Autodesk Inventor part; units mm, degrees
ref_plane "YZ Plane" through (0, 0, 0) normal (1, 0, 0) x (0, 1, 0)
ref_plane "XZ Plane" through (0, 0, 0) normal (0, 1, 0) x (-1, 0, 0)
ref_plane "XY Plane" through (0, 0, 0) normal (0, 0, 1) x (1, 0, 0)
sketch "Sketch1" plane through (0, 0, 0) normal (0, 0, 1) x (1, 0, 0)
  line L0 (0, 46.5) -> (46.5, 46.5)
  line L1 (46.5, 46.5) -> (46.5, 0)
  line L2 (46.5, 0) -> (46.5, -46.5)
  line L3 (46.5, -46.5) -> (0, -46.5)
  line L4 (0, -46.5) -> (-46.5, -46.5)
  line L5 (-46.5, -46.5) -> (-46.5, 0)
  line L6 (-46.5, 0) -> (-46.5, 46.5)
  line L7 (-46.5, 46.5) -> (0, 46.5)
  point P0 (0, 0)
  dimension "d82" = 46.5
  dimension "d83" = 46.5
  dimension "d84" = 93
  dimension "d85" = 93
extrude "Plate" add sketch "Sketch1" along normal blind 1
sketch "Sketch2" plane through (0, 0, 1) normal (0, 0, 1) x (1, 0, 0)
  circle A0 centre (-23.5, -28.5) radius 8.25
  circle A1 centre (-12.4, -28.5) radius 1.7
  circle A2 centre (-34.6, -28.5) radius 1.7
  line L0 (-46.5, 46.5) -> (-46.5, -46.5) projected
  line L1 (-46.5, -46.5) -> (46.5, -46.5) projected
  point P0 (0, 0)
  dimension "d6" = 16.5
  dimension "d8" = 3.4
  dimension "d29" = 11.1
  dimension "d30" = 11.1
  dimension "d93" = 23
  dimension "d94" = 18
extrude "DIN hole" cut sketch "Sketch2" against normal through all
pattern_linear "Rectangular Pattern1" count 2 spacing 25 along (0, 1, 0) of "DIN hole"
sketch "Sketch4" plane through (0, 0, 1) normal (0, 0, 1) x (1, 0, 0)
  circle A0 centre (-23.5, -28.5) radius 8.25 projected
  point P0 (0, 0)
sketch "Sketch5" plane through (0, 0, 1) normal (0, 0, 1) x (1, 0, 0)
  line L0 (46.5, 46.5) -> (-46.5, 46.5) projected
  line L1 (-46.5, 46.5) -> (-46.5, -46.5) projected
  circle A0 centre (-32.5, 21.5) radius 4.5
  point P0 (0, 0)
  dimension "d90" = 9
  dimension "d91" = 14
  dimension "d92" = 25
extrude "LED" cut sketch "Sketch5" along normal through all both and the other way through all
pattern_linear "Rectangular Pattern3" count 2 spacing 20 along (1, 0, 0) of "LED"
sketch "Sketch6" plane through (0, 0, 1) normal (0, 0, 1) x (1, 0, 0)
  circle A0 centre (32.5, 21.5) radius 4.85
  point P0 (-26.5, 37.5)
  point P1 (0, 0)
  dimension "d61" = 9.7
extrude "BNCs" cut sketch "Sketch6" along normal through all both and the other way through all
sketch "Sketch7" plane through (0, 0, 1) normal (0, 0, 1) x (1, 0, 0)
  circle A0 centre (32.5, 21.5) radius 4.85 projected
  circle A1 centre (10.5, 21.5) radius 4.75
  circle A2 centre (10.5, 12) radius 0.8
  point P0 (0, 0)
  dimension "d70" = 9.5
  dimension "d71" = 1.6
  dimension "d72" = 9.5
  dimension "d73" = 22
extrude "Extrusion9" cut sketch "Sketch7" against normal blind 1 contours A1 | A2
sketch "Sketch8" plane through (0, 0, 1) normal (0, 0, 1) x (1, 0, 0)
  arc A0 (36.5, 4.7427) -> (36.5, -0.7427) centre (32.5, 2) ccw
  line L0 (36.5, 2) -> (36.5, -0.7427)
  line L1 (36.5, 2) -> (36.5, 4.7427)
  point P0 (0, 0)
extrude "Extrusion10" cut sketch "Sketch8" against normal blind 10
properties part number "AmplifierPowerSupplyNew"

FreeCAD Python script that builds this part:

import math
import FreeCAD as App
import Part
import Sketcher

V = App.Vector
Q = App.Units.Quantity


def add_polygon(sketch, points):
    """Adds a closed chain of lines whose ends are joined by coincident constraints."""
    first, n = sketch.GeometryCount, len(points)
    for a, b in zip(points, points[1:] + points[:1]):
        sketch.addGeometry(Part.LineSegment(App.Vector(*a, 0), App.Vector(*b, 0)), False)
    for i in range(n):
        sketch.addConstraint(Sketcher.Constraint("Coincident", first + i, 2, first + (i + 1) % n, 1))

doc = App.newDocument("Part")
body = doc.addObject("PartDesign::Body", "Body")

# Sketch on XY plane
sketch1 = body.newObject("Sketcher::SketchObject", "Sketch")
sketch1.AttachmentSupport = (doc.getObject("XY_Plane"), [""])
sketch1.MapMode = "FlatFace"
add_polygon(sketch1, [(46.5, 46.5), (-46.5, 46.5), (-46.5, -46.5), (46.5, -46.5)])  # lines 0-3
sketch1.addConstraint([
    Sketcher.Constraint("Horizontal", 0),
    Sketcher.Constraint("Vertical", 1),
    Sketcher.Constraint("Horizontal", 2),
    Sketcher.Constraint("Vertical", 3),
    Sketcher.Constraint("Symmetric", 0, 2, 2, 2, -1, 1),
    Sketcher.Constraint("Equal", 2, 1),
    Sketcher.Constraint("DistanceX", 0, 2, 0, 1, Q("93 mm")),
])
pad1 = body.newObject("PartDesign::Pad", "Pad")
pad1.Profile = sketch1
pad1.Length = 1

# Sketch on XY plane
sketch2 = body.newObject("Sketcher::SketchObject", "Sketch001")
sketch2.AttachmentSupport = (doc.getObject("XY_Plane"), [""])
sketch2.MapMode = "FlatFace"
sketch2.AttachmentOffset = App.Placement(V(0, 0, 1), App.Rotation())
sketch2.addGeometry([
    Part.Circle(V(-23.5, -28.5, 0), V(0, 0, 1), 8.25),
    Part.Circle(V(-12.4, -28.5, 0), V(0, 0, 1), 1.7),
    Part.Circle(V(-34.6, -28.5, 0), V(0, 0, 1), 1.7),
], False)
sketch2.addConstraint([
    Sketcher.Constraint("Equal", 1, 2),
    Sketcher.Constraint("Horizontal", 0, 3, 1, 3),
    Sketcher.Constraint("Horizontal", 1, 3, 2, 3),
    Sketcher.Constraint("Diameter", 0, Q("16.5 mm")),
    Sketcher.Constraint("Diameter", 1, Q("3.4 mm")),
    Sketcher.Constraint("DistanceX", 0, 3, 1, 3, Q("11.1 mm")),
    Sketcher.Constraint("DistanceX", 2, 3, 0, 3, Q("11.1 mm")),
    Sketcher.Constraint("DistanceX", 0, 3, -1, 1, Q("23.5 mm")),
    Sketcher.Constraint("DistanceY", 0, 3, -1, 1, Q("28.5 mm")),
])
pocket1 = body.newObject("PartDesign::Pocket", "Pocket")
pocket1.Profile = sketch2
pocket1.Type = "ThroughAll"
doc.recompute()

linearpattern = body.newObject("PartDesign::LinearPattern", "LinearPattern")
linearpattern.Originals = [pocket1]
linearpattern.Direction = (doc.getObject("Y_Axis"), [""])
linearpattern.Mode = "offset"
linearpattern.Offset = 25
linearpattern.Occurrences = 2
body.Tip = linearpattern

# Sketch on XY plane
sketch3 = body.newObject("Sketcher::SketchObject", "Sketch002")
sketch3.AttachmentSupport = (doc.getObject("XY_Plane"), [""])
sketch3.MapMode = "FlatFace"
sketch3.AttachmentOffset = App.Placement(V(0, 0, 1), App.Rotation())
sketch3.addGeometry(Part.Circle(V(-32.5, 21.5, 0), V(0, 0, 1), 4.5), False)
sketch3.addConstraint([
    Sketcher.Constraint("Diameter", 0, Q("9 mm")),
    Sketcher.Constraint("DistanceX", 0, 3, -1, 1, Q("32.5 mm")),
    Sketcher.Constraint("DistanceY", -1, 1, 0, 3, Q("21.5 mm")),
])
pocket2 = body.newObject("PartDesign::Pocket", "Pocket001")
pocket2.Profile = sketch3
pocket2.Type = "ThroughAll"
pocket2.Midplane = True
doc.recompute()

linearpattern2 = body.newObject("PartDesign::LinearPattern", "LinearPattern001")
linearpattern2.Originals = [pocket2]
linearpattern2.Direction = (doc.getObject("X_Axis"), [""])
linearpattern2.Mode = "offset"
linearpattern2.Offset = 20
linearpattern2.Occurrences = 2
body.Tip = linearpattern2

# Sketch on XY plane
sketch4 = body.newObject("Sketcher::SketchObject", "Sketch003")
sketch4.AttachmentSupport = (doc.getObject("XY_Plane"), [""])
sketch4.MapMode = "FlatFace"
sketch4.AttachmentOffset = App.Placement(V(0, 0, 1), App.Rotation())
sketch4.addGeometry(Part.Circle(V(32.5, 21.5, 0), V(0, 0, 1), 4.85), False)
sketch4.addConstraint([
    Sketcher.Constraint("Diameter", 0, Q("9.7 mm")),
    Sketcher.Constraint("DistanceX", -1, 1, 0, 3, Q("32.5 mm")),
    Sketcher.Constraint("DistanceY", -1, 1, 0, 3, Q("21.5 mm")),
])
pocket3 = body.newObject("PartDesign::Pocket", "Pocket002")
pocket3.Profile = sketch4
pocket3.Type = "ThroughAll"
pocket3.Midplane = True

# Sketch on XY plane
sketch5 = body.newObject("Sketcher::SketchObject", "Sketch004")
sketch5.AttachmentSupport = (doc.getObject("XY_Plane"), [""])
sketch5.MapMode = "FlatFace"
sketch5.AttachmentOffset = App.Placement(V(0, 0, 1), App.Rotation())
sketch5.addGeometry([
    Part.Circle(V(10.5, 21.5, 0), V(0, 0, 1), 4.75),
    Part.Circle(V(10.5, 12, 0), V(0, 0, 1), 0.8),
], False)
sketch5.addConstraint([
    Sketcher.Constraint("Vertical", 0, 3, 1, 3),
    Sketcher.Constraint("Diameter", 0, Q("9.5 mm")),
    Sketcher.Constraint("Diameter", 1, Q("1.6 mm")),
    Sketcher.Constraint("DistanceY", 1, 3, 0, 3, Q("9.5 mm")),
    Sketcher.Constraint("DistanceY", -1, 1, 1, 3, Q("12 mm")),
    Sketcher.Constraint("DistanceX", -1, 1, 0, 3, Q("10.5 mm")),
])
pocket4 = body.newObject("PartDesign::Pocket", "Pocket003")
pocket4.Profile = sketch5
pocket4.Length = 1

# Sketch on XY plane
sketch6 = body.newObject("Sketcher::SketchObject", "Sketch005")
sketch6.AttachmentSupport = (doc.getObject("XY_Plane"), [""])
sketch6.MapMode = "FlatFace"
sketch6.AttachmentOffset = App.Placement(V(0, 0, 1), App.Rotation())
sketch6.addGeometry([
    Part.LineSegment(V(36.5, -0.7427, 0), V(36.5, 4.7427, 0)),
    Part.ArcOfCircle(Part.Circle(V(32.5, 2, 0), V(0, 0, 1), 4.84999), math.radians(34.437458), math.radians(325.562542)),
], False)
sketch6.addConstraint([
    Sketcher.Constraint("Coincident", 0, 1, 1, 2),
    Sketcher.Constraint("Coincident", 1, 1, 0, 2),
    Sketcher.Constraint("Vertical", 0),
    Sketcher.Constraint("Radius", 1, Q("4.85 mm")),
    Sketcher.Constraint("DistanceY", -1, 1, 1, 3, Q("2 mm")),
    Sketcher.Constraint("DistanceX", 1, 3, 0, 1, Q("4 mm")),
    Sketcher.Constraint("DistanceX", -1, 1, 1, 3, Q("32.5 mm")),
])
pocket5 = body.newObject("PartDesign::Pocket", "Pocket004")
pocket5.Profile = sketch6
pocket5.Length = 10

doc.recompute()
